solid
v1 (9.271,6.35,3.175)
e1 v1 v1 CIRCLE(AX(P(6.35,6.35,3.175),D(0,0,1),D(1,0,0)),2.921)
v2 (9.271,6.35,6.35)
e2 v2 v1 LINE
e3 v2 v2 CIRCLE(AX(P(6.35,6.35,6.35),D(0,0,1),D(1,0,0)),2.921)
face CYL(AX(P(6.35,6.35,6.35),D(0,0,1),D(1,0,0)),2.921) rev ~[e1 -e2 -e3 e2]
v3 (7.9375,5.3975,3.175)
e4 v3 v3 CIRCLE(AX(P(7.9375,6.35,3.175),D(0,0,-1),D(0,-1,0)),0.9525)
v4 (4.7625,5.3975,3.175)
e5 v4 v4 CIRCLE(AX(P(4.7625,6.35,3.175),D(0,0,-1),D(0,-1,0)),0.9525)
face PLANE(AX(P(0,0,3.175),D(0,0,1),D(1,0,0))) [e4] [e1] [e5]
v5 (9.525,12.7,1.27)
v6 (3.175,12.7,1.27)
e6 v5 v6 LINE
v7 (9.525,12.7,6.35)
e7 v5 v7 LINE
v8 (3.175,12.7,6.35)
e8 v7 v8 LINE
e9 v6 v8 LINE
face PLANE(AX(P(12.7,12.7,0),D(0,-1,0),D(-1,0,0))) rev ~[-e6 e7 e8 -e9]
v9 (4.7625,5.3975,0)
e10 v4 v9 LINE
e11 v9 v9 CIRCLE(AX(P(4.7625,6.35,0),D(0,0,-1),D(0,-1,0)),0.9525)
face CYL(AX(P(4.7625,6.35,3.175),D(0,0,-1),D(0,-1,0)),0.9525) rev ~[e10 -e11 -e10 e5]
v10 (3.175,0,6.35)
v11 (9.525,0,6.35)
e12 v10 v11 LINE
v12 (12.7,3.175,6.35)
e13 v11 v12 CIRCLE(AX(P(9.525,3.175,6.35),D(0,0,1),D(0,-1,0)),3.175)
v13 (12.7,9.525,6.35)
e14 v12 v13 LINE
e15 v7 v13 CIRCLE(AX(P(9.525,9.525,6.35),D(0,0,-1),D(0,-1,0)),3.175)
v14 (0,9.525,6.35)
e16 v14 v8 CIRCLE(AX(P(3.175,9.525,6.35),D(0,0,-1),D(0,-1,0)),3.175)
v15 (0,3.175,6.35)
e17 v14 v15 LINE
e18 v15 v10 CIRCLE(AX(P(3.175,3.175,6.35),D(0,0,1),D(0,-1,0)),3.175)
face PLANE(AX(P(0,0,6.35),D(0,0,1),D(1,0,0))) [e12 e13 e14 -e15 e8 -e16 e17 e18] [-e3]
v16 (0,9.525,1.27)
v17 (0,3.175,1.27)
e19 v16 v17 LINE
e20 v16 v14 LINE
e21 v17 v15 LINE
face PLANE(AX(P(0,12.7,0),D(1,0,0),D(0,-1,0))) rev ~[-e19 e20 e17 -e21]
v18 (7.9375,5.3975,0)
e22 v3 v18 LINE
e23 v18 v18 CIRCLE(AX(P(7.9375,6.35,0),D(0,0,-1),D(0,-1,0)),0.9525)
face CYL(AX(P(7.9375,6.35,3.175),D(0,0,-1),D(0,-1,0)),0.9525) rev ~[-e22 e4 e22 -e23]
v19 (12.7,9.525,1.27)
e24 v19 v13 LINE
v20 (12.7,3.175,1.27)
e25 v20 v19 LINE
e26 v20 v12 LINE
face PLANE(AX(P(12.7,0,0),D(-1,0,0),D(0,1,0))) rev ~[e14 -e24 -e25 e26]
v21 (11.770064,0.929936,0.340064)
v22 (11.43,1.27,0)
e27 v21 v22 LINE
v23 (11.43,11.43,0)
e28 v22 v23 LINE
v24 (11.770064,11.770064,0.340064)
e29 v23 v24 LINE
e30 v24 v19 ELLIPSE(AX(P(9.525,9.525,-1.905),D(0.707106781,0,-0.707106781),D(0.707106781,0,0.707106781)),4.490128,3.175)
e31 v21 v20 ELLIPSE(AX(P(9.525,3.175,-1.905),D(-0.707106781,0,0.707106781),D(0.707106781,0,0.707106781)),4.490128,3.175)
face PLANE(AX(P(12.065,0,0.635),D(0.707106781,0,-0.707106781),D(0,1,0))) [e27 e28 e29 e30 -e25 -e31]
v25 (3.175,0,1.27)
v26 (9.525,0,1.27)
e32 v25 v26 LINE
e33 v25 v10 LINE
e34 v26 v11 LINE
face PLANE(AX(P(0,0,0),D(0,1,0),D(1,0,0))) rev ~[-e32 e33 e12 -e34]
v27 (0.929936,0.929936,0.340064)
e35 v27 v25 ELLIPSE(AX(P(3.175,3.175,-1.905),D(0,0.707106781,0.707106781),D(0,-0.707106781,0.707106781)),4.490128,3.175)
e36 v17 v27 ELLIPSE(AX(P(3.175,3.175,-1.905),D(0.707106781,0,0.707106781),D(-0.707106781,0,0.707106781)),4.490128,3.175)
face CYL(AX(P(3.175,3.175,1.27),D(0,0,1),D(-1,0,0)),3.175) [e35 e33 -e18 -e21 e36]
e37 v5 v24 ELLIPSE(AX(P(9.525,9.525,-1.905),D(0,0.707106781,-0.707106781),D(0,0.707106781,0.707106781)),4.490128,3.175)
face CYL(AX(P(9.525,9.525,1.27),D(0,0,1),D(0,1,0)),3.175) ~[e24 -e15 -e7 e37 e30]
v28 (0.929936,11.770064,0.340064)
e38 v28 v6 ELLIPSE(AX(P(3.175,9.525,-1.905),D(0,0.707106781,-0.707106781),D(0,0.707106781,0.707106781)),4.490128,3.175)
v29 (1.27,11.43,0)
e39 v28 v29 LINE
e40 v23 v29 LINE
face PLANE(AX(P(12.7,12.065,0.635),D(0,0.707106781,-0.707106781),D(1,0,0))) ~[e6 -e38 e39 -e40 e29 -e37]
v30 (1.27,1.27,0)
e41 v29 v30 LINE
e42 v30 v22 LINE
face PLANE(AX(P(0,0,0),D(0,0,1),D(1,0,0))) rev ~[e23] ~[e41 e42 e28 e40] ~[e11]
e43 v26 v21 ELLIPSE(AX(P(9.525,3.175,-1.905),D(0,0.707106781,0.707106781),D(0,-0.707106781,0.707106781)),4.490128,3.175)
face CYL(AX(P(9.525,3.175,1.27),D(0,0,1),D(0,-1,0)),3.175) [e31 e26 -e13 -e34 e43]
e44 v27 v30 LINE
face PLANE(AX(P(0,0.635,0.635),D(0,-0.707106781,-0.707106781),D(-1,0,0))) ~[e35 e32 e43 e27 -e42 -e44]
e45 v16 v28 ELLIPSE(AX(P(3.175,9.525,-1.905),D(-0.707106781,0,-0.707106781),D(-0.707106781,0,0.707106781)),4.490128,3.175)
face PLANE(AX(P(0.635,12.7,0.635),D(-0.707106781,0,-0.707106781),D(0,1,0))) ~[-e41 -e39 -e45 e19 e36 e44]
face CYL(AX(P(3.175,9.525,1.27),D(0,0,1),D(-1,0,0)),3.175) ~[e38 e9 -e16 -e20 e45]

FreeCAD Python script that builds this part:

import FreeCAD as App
import Part
import Sketcher
Q = App.Units.Quantity


def edges_at(feature, points):
    """Names of the edges that pass closest to the given points."""
    edges = feature.Shape.Edges
    near = lambda p: min(range(len(edges)), key=lambda i: edges[i].distToShape(Part.Vertex(*p))[0])
    return sorted({f"Edge{near(p) + 1}" for p in points})


def add_polygon(sketch, points):
    """Adds a closed chain of lines whose ends are joined by coincident constraints."""
    first, n = sketch.GeometryCount, len(points)
    for a, b in zip(points, points[1:] + points[:1]):
        sketch.addGeometry(Part.LineSegment(App.Vector(*a, 0), App.Vector(*b, 0)), False)
    for i in range(n):
        sketch.addConstraint(Sketcher.Constraint("Coincident", first + i, 2, first + (i + 1) % n, 1))

doc = App.newDocument("Part")
body = doc.addObject("PartDesign::Body", "Body")

# Sketch on XY plane
sketch1 = doc.addObject("Sketcher::SketchObject", "Sketch")
body.addObject(sketch1)
sketch1.AttachmentSupport = (doc.XY_Plane, [""])
sketch1.MapMode = "FlatFace"
add_polygon(sketch1, [(0, 13), (0, 0), (13, 0), (13, 13)])  # lines 0-3
sketch1.addConstraint(Sketcher.Constraint("Vertical", 0))
sketch1.addConstraint(Sketcher.Constraint("Horizontal", 1))
sketch1.addConstraint(Sketcher.Constraint("Vertical", 2))
sketch1.addConstraint(Sketcher.Constraint("Horizontal", 3))
sketch1.addConstraint(Sketcher.Constraint("Coincident", 0, 2, -1, 1))
sketch1.addConstraint(Sketcher.Constraint("Equal", 3, 0))
sketch1.addConstraint(Sketcher.Constraint("DistanceX", 1, 1, 1, 2, Q("0.5 in")))
pad1 = doc.addObject("PartDesign::Pad", "Pad")
body.addObject(pad1)
pad1.Profile = sketch1
pad1.Length = Q("0.25 in")

# Sketch on XY plane
sketch2 = doc.addObject("Sketcher::SketchObject", "Sketch001")
body.addObject(sketch2)
sketch2.AttachmentSupport = (doc.XY_Plane, [""])
sketch2.MapMode = "FlatFace"
sketch2.AttachmentOffset = App.Placement(App.Vector(0, 0, 0.25 * 25.4), App.Rotation())
sketch2.addGeometry(Part.Circle(App.Vector(6.3, 6.3, 0), App.Vector(0, 0, 1), 2.9), False)
sketch2.addConstraint(Sketcher.Constraint("Diameter", 0, Q("0.23 in")))
sketch2.addConstraint(Sketcher.Constraint("DistanceX", -1, 1, 0, 3, Q("0.25 in")))
sketch2.addConstraint(Sketcher.Constraint("DistanceY", -1, 1, 0, 3, Q("0.25 in")))
pocket1 = doc.addObject("PartDesign::Pocket", "Pocket")
body.addObject(pocket1)
pocket1.Profile = sketch2
pocket1.Length = Q("0.125 in")

# Sketch on XY plane
sketch3 = doc.addObject("Sketcher::SketchObject", "Sketch002")
body.addObject(sketch3)
sketch3.AttachmentSupport = (doc.XY_Plane, [""])
sketch3.MapMode = "FlatFace"
sketch3.AttachmentOffset = App.Placement(App.Vector(0, 0, 0.125 * 25.4), App.Rotation())
sketch3.addGeometry(Part.Circle(App.Vector(4.8, 6.3, 0), App.Vector(0, 0, 1), 1), False)
sketch3.addGeometry(Part.Circle(App.Vector(7.9, 6.3, 0), App.Vector(0, 0, 1), 1), False)
sketch3.addConstraint(Sketcher.Constraint("Equal", 0, 1))
sketch3.addConstraint(Sketcher.Constraint("Horizontal", 0, 3, 1, 3))
sketch3.addConstraint(Sketcher.Constraint("Diameter", 0, Q("0.075 in")))
sketch3.addConstraint(Sketcher.Constraint("DistanceY", -1, 1, 0, 3, Q("0.25 in")))
sketch3.addConstraint(Sketcher.Constraint("DistanceX", -1, 1, 0, 3, Q("0.1875 in")))
sketch3.addConstraint(Sketcher.Constraint("DistanceX", -1, 1, 1, 3, Q("0.3125 in")))
doc.recompute()
hole = doc.addObject("PartDesign::Hole", "Hole")
body.addObject(hole)
hole.Profile = sketch3
hole.ThreadType = "None"
hole.Diameter = Q("0.075 in")
hole.DepthType = "ThroughAll"
doc.recompute()

chamfer = doc.addObject("PartDesign::Chamfer", "Chamfer")
body.addObject(chamfer)
chamfer.Base = (hole, edges_at(hole, [
    (6.35, 0, 0),
    (12.7, 6.35, 0),
    (6.35, 12.7, 0),
    (0, 6.35, 0),
]))
chamfer.Size = Q("0.05 in")
doc.recompute()

fillet = doc.addObject("PartDesign::Fillet", "Fillet")
body.addObject(fillet)
fillet.Base = (chamfer, edges_at(chamfer, [
    (12.7, 0, 3.81),
    (12.7, 12.7, 3.81),
    (0, 12.7, 3.81),
    (0, 0, 3.81),
]))
fillet.Radius = Q("0.125 in")

doc.recompute()
